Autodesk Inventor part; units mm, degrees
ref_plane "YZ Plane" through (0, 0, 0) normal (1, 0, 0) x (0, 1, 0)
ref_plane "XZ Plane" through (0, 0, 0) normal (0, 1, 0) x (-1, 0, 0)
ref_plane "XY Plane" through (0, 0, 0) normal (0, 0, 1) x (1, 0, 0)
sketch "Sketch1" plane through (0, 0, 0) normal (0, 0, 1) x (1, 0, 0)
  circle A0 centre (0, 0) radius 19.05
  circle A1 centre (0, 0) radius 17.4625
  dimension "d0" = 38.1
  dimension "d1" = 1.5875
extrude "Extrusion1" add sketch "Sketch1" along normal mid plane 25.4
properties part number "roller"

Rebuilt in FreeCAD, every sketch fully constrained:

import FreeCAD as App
import Part
import Sketcher
from FreeCAD import Vector
Q = App.Units.Quantity

doc = App.newDocument("Part")
params = doc.addObject("Spreadsheet::Sheet", "Params")
for row, (alias, value) in enumerate([
    ("sketch1_diameter", "1.5 in"),
    ("sketch1_diameter2", "1.375 in"),
    ("pad1_length", "1 in"),
], start=1):
    params.set(f"A{row}", alias)
    params.set(f"B{row}", "=" + value)
    params.setAlias(f"B{row}", alias)

body = doc.addObject("PartDesign::Body", "Body")

sketch1 = body.newObject("Sketcher::SketchObject", "Sketch")
sketch1.AttachmentSupport = (doc.getObject("XY_Plane"), [""])
sketch1.MapMode = "FlatFace"
sketch1.addGeometry(Part.Circle(Vector(0, 0, 0), Vector(0, 0, 1), 19), False)
sketch1.addGeometry(Part.Circle(Vector(0, 0, 0), Vector(0, 0, 1), 17), False)
sketch1.addConstraint(Sketcher.Constraint("Coincident", 0, 3, -1, 1))
sketch1.addConstraint(Sketcher.Constraint("Coincident", 1, 3, -1, 1))
sketch1.addConstraint(Sketcher.Constraint("Diameter", 0, Q("1.5 in")))
sketch1.addConstraint(Sketcher.Constraint("Diameter", 1, Q("1.375 in")))
sketch1.setExpression("Constraints[2]", "Params.sketch1_diameter")
sketch1.setExpression("Constraints[3]", "Params.sketch1_diameter2")
pad1 = body.newObject("PartDesign::Pad", "Pad")
pad1.Profile = sketch1
pad1.setExpression("Length", "Params.pad1_length")
pad1.Midplane = True

doc.recompute()
